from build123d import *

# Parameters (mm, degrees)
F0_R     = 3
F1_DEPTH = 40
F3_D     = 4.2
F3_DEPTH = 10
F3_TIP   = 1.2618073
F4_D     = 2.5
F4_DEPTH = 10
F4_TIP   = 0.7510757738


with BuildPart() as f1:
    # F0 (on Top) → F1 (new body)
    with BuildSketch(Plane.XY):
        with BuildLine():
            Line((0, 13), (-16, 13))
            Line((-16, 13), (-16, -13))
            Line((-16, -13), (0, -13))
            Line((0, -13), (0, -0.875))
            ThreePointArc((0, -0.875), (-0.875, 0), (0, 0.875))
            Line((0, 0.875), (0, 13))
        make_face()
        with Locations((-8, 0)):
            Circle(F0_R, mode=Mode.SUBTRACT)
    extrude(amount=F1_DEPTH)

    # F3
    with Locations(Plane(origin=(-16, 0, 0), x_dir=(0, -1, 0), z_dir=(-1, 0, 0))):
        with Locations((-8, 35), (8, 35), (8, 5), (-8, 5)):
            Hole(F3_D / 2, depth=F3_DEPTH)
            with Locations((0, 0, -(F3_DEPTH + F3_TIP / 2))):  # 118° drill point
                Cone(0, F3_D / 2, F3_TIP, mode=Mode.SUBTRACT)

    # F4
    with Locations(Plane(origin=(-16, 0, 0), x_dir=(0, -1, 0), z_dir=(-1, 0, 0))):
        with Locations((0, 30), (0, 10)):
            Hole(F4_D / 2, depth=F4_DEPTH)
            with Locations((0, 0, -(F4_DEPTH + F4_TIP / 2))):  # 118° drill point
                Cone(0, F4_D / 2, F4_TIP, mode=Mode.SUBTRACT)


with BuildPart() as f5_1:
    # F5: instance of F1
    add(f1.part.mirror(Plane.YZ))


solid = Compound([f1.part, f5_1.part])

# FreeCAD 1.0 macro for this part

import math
import FreeCAD as App
import Part
import Sketcher
from FreeCAD import Vector

doc = App.newDocument("Part")
body = doc.addObject("PartDesign::Body", "Body")

# Sketch on XY plane
sketch1 = body.newObject("Sketcher::SketchObject", "Sketch")
sketch1.AttachmentSupport = (doc.getObject("XY_Plane"), [""])
sketch1.MapMode = "FlatFace"
sketch1.addGeometry([
    Part.LineSegment(Vector(0, 13, 0), Vector(-16, 13, 0)),  # 0
    Part.LineSegment(Vector(-16, 13, 0), Vector(-16, -13, 0)),  # 1
    Part.LineSegment(Vector(-16, -13, 0), Vector(0, -13, 0)),  # 2
    Part.LineSegment(Vector(0, -13, 0), Vector(0, -0.875, 0)),  # 3
    Part.ArcOfCircle(Part.Circle(Vector(0, 0, 0), Vector(0, 0, 1), 0.875), math.radians(90), math.radians(270)),  # 4
    Part.LineSegment(Vector(0, 0.875, 0), Vector(0, 13, 0)),  # 5
    Part.Circle(Vector(-8, 0, 0), Vector(0, 0, 1), 3),  # 6
], False)
sketch1.addConstraint([
    Sketcher.Constraint("Coincident", 0, 2, 1, 1),
    Sketcher.Constraint("Coincident", 1, 2, 2, 1),
    Sketcher.Constraint("Coincident", 2, 2, 3, 1),
    Sketcher.Constraint("Coincident", 3, 2, 4, 2),
    Sketcher.Constraint("Coincident", 4, 1, 5, 1),
    Sketcher.Constraint("Coincident", 5, 2, 0, 1),
    Sketcher.Constraint("Horizontal", 0),
    Sketcher.Constraint("Vertical", 1),
    Sketcher.Constraint("Horizontal", 2),
    Sketcher.Constraint("Vertical", 3),
    Sketcher.Constraint("Vertical", 5),
    Sketcher.Constraint("Coincident", 4, 3, -1, 1),
    Sketcher.Constraint("Symmetric", 2, 2, 5, 2, -1, 1),
    Sketcher.Constraint("PointOnObject", 6, 3, -1),
    Sketcher.Constraint("PointOnObject", 2, 2, -2),
    Sketcher.Constraint("Diameter", 6, 6.0),
    Sketcher.Constraint("DistanceX", 0, 2, 0, 1, 16.0),
    Sketcher.Constraint("DistanceY", 1, 2, 1, 1, 26.0),
    Sketcher.Constraint("DistanceX", 6, 3, -1, 1, 8.0),
    Sketcher.Constraint("Radius", 4, 0.875),
])
pad1 = body.newObject("PartDesign::Pad", "Pad")
pad1.Profile = sketch1
pad1.Length = 40

# Sketch on YZ plane
sketch2 = body.newObject("Sketcher::SketchObject", "Sketch001")
sketch2.AttachmentSupport = (doc.getObject("YZ_Plane"), [""])
sketch2.MapMode = "FlatFace"
sketch2.AttachmentOffset = App.Placement(Vector(0, 0, -16), App.Rotation())
sketch2.addGeometry([
    Part.Circle(Vector(8, 35, 0), Vector(0, 0, 1), 2.1),
    Part.Circle(Vector(-8, 35, 0), Vector(0, 0, 1), 2.1),
    Part.Circle(Vector(-8, 5, 0), Vector(0, 0, 1), 2.1),
    Part.Circle(Vector(8, 5, 0), Vector(0, 0, 1), 2.1),
], False)
sketch2.addConstraint([
    Sketcher.Constraint("Equal", 0, 1),
    Sketcher.Constraint("Equal", 1, 2),
    Sketcher.Constraint("Equal", 2, 3),
    Sketcher.Constraint("Symmetric", 0, 3, 1, 3, -2),
    Sketcher.Constraint("Symmetric", 2, 3, 3, 3, -2),
    Sketcher.Constraint("Vertical", 1, 3, 2, 3),
    Sketcher.Constraint("Diameter", 0, 4.2),
    Sketcher.Constraint("DistanceX", -1, 1, 0, 3, 8.0),
    Sketcher.Constraint("DistanceY", -1, 1, 0, 3, 35.0),
    Sketcher.Constraint("DistanceY", -1, 1, 2, 3, 5.0),
])
doc.recompute()
hole = body.newObject("PartDesign::Hole", "Hole")
hole.Profile = sketch2
hole.ThreadType = "None"
hole.Diameter = 4.2
hole.DepthType = "Dimension"
hole.Depth = 10
hole.DrillPoint = "Angled"
hole.DrillPointAngle = 118
hole.Reversed = True

# Sketch on YZ plane
sketch3 = body.newObject("Sketcher::SketchObject", "Sketch002")
sketch3.AttachmentSupport = (doc.getObject("YZ_Plane"), [""])
sketch3.MapMode = "FlatFace"
sketch3.AttachmentOffset = App.Placement(Vector(0, 0, -16), App.Rotation())
sketch3.addGeometry([
    Part.Circle(Vector(0, 30, 0), Vector(0, 0, 1), 1.25),
    Part.Circle(Vector(0, 10, 0), Vector(0, 0, 1), 1.25),
], False)
sketch3.addConstraint([
    Sketcher.Constraint("Equal", 0, 1),
    Sketcher.Constraint("PointOnObject", 0, 3, -2),
    Sketcher.Constraint("PointOnObject", 1, 3, -2),
    Sketcher.Constraint("Diameter", 0, 2.5),
    Sketcher.Constraint("DistanceY", -1, 1, 0, 3, 30.0),
    Sketcher.Constraint("DistanceY", -1, 1, 1, 3, 10.0),
])
doc.recompute()
hole2 = body.newObject("PartDesign::Hole", "Hole001")
hole2.Profile = sketch3
hole2.ThreadType = "None"
hole2.Diameter = 2.5
hole2.DepthType = "Dimension"
hole2.Depth = 10
hole2.DrillPoint = "Angled"
hole2.DrillPointAngle = 118
hole2.Reversed = True
body2 = doc.addObject("PartDesign::Body", "Body001")
doc.recompute()

mirroring = doc.addObject("Part::Mirroring", "Mirroring")
mirroring.Source = body
mirroring.Base = Vector(0, 0, 0)
mirroring.Normal = Vector(1, 0, 0)
body2.BaseFeature = mirroring
doc.recompute()
mirroring.Visibility = False

doc.recompute()
